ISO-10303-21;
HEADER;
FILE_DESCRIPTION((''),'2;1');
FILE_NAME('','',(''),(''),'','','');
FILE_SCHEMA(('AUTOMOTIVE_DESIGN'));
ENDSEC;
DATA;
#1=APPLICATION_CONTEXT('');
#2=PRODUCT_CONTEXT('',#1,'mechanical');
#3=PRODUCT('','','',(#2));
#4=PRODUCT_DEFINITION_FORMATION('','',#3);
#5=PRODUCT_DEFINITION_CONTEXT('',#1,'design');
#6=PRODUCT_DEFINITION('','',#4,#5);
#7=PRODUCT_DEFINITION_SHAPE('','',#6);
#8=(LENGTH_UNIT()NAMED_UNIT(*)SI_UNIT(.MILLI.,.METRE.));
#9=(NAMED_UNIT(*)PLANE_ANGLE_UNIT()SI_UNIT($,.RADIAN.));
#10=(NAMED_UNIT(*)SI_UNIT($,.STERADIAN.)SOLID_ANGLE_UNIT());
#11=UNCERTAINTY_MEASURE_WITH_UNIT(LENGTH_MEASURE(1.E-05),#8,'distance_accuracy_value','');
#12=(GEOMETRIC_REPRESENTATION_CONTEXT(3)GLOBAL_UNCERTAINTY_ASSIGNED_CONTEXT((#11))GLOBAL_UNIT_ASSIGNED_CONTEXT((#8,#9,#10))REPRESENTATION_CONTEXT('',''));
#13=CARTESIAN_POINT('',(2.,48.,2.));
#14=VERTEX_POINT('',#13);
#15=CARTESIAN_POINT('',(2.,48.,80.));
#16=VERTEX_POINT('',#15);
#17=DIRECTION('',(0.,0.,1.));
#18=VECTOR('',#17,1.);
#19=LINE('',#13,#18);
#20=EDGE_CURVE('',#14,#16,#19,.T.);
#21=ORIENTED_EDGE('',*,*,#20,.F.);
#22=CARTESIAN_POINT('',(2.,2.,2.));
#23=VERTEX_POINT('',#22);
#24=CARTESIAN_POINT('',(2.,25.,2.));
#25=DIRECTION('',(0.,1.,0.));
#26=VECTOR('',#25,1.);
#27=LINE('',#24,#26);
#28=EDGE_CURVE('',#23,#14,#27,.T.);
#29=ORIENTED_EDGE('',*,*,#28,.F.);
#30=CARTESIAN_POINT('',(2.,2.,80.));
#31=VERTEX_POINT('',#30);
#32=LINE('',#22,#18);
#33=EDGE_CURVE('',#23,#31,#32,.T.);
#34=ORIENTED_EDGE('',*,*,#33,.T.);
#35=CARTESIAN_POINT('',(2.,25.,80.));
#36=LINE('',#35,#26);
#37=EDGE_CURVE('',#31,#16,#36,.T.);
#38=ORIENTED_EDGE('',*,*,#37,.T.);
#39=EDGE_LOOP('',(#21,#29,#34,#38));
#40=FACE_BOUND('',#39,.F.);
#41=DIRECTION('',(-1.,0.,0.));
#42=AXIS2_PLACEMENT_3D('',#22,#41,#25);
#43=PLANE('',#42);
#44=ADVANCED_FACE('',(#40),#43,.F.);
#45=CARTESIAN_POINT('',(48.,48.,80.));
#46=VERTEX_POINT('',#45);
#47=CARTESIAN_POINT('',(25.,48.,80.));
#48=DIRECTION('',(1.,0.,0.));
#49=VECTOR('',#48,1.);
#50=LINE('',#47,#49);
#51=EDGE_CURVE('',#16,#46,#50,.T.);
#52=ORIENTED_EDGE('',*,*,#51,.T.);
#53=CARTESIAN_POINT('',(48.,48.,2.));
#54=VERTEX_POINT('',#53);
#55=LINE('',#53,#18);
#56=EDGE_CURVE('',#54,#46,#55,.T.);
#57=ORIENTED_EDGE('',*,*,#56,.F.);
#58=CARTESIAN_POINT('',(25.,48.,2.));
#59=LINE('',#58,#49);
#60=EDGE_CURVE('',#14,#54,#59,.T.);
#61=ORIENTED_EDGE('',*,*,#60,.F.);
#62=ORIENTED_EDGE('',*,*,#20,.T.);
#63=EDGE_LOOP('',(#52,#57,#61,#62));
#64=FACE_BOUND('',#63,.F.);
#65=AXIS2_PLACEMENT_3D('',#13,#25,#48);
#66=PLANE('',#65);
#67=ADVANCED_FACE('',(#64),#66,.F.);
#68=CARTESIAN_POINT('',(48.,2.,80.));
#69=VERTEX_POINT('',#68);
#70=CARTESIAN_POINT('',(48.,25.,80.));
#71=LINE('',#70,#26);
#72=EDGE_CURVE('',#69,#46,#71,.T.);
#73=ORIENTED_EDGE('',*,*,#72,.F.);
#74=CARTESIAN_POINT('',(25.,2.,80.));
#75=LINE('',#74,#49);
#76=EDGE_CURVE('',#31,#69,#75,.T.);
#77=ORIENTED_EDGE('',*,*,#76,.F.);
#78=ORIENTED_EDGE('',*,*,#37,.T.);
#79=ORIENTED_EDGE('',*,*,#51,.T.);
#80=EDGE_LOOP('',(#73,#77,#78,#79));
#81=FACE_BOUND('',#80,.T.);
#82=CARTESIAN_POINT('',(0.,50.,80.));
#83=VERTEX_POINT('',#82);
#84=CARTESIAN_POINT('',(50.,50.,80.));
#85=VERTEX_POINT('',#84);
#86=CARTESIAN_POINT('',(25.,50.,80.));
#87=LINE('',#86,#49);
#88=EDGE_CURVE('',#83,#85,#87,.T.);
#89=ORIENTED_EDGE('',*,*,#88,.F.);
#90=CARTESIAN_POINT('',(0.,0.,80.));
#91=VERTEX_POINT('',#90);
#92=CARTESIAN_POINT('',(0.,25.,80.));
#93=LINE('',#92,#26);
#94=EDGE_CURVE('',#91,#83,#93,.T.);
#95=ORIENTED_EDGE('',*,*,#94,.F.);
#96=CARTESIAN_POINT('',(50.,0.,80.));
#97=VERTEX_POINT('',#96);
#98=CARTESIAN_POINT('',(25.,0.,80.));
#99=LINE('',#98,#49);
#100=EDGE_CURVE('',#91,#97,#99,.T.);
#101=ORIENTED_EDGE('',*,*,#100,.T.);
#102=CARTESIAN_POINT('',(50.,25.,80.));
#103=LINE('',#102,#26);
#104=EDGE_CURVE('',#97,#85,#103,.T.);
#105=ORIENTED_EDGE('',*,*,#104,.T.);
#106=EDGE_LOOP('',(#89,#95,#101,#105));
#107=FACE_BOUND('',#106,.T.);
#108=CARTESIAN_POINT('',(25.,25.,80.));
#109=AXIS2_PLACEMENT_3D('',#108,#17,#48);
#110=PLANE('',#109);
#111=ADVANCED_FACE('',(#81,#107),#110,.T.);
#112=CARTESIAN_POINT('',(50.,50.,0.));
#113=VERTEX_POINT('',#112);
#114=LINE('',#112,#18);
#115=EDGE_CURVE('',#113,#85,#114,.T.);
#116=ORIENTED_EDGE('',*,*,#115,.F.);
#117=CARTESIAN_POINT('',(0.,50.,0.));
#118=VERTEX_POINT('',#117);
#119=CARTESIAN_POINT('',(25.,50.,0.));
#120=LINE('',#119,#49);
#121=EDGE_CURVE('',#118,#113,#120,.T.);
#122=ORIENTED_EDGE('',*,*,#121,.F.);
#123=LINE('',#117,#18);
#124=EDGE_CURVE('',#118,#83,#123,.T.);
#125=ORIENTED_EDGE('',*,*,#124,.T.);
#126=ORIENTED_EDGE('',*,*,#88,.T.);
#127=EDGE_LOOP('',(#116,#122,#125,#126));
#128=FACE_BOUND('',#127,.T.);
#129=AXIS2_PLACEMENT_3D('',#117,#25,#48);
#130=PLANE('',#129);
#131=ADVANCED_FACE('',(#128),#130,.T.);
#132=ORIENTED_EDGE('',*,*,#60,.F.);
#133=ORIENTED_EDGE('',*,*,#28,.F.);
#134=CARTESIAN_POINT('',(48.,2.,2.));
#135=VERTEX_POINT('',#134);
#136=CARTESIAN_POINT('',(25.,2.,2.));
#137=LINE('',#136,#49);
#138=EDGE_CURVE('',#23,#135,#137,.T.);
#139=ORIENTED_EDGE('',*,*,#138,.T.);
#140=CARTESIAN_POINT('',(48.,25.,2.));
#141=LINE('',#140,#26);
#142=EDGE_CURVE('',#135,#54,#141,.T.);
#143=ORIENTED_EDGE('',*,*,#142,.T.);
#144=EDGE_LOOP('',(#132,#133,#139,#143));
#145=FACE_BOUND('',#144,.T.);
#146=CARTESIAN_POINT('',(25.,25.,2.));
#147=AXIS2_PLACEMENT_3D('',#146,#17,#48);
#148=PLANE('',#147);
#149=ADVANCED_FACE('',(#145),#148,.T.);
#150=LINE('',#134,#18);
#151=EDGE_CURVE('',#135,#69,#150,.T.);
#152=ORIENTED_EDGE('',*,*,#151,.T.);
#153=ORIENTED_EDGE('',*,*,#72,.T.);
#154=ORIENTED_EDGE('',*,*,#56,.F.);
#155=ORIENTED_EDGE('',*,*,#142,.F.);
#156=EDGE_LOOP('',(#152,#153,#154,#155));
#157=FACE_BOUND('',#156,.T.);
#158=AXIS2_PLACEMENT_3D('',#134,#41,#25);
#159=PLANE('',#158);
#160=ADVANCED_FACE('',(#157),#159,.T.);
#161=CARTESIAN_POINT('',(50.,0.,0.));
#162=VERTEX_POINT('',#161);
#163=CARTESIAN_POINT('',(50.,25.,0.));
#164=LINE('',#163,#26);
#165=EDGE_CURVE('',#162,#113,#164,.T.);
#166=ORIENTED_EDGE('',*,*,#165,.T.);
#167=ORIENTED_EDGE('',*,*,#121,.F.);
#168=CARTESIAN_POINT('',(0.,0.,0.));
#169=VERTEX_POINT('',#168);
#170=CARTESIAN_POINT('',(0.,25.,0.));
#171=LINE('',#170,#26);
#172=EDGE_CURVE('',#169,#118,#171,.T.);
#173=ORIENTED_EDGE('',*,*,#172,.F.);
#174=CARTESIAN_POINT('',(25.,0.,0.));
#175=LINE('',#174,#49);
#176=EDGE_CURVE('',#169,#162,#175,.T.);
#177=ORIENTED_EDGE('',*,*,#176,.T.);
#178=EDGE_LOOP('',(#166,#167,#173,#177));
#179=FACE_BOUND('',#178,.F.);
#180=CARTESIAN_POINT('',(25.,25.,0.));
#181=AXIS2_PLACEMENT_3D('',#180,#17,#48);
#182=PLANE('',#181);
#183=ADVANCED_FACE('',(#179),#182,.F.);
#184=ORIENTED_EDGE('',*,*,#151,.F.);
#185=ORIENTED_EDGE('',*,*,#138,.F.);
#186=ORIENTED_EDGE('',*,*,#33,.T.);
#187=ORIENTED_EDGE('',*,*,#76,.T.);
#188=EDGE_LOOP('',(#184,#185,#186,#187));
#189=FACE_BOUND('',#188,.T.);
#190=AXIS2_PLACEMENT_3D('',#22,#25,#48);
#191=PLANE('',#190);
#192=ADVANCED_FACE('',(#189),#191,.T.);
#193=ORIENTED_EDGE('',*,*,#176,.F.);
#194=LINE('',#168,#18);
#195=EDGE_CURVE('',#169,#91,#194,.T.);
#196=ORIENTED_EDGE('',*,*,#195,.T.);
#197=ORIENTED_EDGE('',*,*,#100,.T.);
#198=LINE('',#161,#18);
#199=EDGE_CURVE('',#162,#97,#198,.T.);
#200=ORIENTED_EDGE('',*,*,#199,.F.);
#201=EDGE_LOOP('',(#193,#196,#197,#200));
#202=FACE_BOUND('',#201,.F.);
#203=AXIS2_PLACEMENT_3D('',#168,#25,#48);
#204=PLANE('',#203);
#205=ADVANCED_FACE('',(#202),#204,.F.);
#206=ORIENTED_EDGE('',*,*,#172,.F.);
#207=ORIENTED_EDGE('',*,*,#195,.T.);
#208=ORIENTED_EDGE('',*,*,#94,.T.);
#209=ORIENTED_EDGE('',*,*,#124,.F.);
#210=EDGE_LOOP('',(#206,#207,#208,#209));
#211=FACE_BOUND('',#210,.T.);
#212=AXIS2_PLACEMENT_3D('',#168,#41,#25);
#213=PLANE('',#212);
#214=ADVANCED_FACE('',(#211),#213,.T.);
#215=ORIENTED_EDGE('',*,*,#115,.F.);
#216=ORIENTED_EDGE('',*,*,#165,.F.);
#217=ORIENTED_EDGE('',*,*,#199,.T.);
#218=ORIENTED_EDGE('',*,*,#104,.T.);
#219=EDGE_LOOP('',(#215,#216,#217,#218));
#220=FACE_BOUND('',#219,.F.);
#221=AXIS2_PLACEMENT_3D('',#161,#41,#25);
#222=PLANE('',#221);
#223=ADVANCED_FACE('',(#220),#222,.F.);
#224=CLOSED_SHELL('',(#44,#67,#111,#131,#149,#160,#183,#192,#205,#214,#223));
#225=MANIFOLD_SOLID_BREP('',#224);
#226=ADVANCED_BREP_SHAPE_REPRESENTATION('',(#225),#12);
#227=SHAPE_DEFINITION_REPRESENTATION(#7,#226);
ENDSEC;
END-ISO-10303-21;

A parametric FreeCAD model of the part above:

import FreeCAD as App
import Part
import Sketcher
from FreeCAD import Vector

doc = App.newDocument("Part")
body = doc.addObject("PartDesign::Body", "Body")

sketch1 = body.newObject("Sketcher::SketchObject", "Sketch")
sketch1.AttachmentSupport = (doc.getObject("XY_Plane"), [""])
sketch1.MapMode = "FlatFace"
sketch1.AttachmentOffset = App.Placement(Vector(0, 0, 2), App.Rotation())
sketch1.addGeometry([
    Part.LineSegment(Vector(2, 48, 0), Vector(2, 2, 0)),
    Part.LineSegment(Vector(2, 2, 0), Vector(48, 2, 0)),
    Part.LineSegment(Vector(48, 2, 0), Vector(48, 48, 0)),
    Part.LineSegment(Vector(48, 48, 0), Vector(2, 48, 0)),
], False)
sketch1.addConstraint([
    Sketcher.Constraint("Coincident", 0, 2, 1, 1),
    Sketcher.Constraint("Coincident", 1, 2, 2, 1),
    Sketcher.Constraint("Coincident", 2, 2, 3, 1),
    Sketcher.Constraint("Coincident", 3, 2, 0, 1),
    Sketcher.Constraint("Vertical", 0),
    Sketcher.Constraint("Horizontal", 1),
    Sketcher.Constraint("Vertical", 2),
    Sketcher.Constraint("Horizontal", 3),
    Sketcher.Constraint("Equal", 3, 0),
    Sketcher.Constraint("DistanceX", 1, 1, 1, 2, 46.0),
    Sketcher.Constraint("DistanceX", -1, 1, 0, 2, 2.0),
    Sketcher.Constraint("DistanceY", -1, 1, 0, 2, 2.0),
])
pad1 = body.newObject("PartDesign::Pad", "Pad")
pad1.Profile = sketch1
pad1.Length = 78
body2 = doc.addObject("PartDesign::Body", "Body001")

sketch2 = body2.newObject("Sketcher::SketchObject", "Sketch001")
sketch2.AttachmentSupport = (doc.getObject("XY_Plane001"), [""])
sketch2.MapMode = "FlatFace"
sketch2.addGeometry([
    Part.LineSegment(Vector(0, 50, 0), Vector(0, 0, 0)),
    Part.LineSegment(Vector(0, 0, 0), Vector(50, 0, 0)),
    Part.LineSegment(Vector(50, 0, 0), Vector(50, 50, 0)),
    Part.LineSegment(Vector(50, 50, 0), Vector(0, 50, 0)),
], False)
sketch2.addConstraint([
    Sketcher.Constraint("Coincident", 0, 2, 1, 1),
    Sketcher.Constraint("Coincident", 1, 2, 2, 1),
    Sketcher.Constraint("Coincident", 2, 2, 3, 1),
    Sketcher.Constraint("Coincident", 3, 2, 0, 1),
    Sketcher.Constraint("Vertical", 0),
    Sketcher.Constraint("Horizontal", 1),
    Sketcher.Constraint("Vertical", 2),
    Sketcher.Constraint("Horizontal", 3),
    Sketcher.Constraint("Coincident", 0, 2, -1, 1),
    Sketcher.Constraint("Equal", 3, 0),
    Sketcher.Constraint("DistanceX", 1, 1, 1, 2, 50.0),
])
pad2 = body2.newObject("PartDesign::Pad", "Pad001")
pad2.Profile = sketch2
pad2.Length = 80
doc.recompute()

boolean = body2.newObject("PartDesign::Boolean", "Boolean")
boolean.Type = "Cut"
boolean.addObjects([body])

doc.recompute()
